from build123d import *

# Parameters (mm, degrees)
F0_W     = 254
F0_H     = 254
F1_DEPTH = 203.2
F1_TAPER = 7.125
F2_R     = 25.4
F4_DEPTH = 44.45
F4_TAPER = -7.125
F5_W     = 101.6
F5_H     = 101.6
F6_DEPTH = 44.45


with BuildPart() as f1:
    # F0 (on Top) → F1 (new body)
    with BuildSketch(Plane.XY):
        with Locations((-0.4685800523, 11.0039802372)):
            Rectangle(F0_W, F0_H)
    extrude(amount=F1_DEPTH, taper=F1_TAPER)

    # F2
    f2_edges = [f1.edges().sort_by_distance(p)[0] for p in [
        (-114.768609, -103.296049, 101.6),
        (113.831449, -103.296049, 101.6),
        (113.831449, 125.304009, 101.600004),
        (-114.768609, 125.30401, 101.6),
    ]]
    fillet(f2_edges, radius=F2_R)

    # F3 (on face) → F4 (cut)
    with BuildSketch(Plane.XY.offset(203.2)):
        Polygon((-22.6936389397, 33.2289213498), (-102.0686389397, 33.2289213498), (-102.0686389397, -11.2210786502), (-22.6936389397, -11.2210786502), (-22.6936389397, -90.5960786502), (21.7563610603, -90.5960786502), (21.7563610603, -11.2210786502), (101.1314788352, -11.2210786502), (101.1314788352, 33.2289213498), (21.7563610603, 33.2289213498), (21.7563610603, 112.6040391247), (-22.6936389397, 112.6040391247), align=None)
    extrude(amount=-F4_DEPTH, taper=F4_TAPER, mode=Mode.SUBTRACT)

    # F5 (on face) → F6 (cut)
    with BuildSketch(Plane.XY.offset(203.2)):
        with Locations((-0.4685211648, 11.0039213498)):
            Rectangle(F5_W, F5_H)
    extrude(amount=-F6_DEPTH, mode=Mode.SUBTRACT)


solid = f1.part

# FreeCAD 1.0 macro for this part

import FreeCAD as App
import Part
import Sketcher
from FreeCAD import Vector
Q = App.Units.Quantity


def edges_at(feature, points):
    """Names of the edges that pass closest to the given points."""
    edges = feature.Shape.Edges
    near = lambda p: min(range(len(edges)), key=lambda i: edges[i].distToShape(Part.Vertex(*p))[0])
    return sorted({f"Edge{near(p) + 1}" for p in points})

doc = App.newDocument("Part")
body = doc.addObject("PartDesign::Body", "Body")

# Sketch on XY plane
sketch1 = doc.addObject("Sketcher::SketchObject", "Sketch")
body.addObject(sketch1)
sketch1.AttachmentSupport = (doc.XY_Plane, [""])
sketch1.MapMode = "FlatFace"
sketch1.addGeometry(Part.LineSegment(Vector(-127, 138, 0), Vector(-127, -116, 0)), False)
sketch1.addGeometry(Part.LineSegment(Vector(-127, -116, 0), Vector(127, -116, 0)), False)
sketch1.addGeometry(Part.LineSegment(Vector(127, -116, 0), Vector(127, 138, 0)), False)
sketch1.addGeometry(Part.LineSegment(Vector(127, 138, 0), Vector(-127, 138, 0)), False)
sketch1.addConstraint(Sketcher.Constraint("Coincident", 0, 2, 1, 1))
sketch1.addConstraint(Sketcher.Constraint("Coincident", 1, 2, 2, 1))
sketch1.addConstraint(Sketcher.Constraint("Coincident", 2, 2, 3, 1))
sketch1.addConstraint(Sketcher.Constraint("Coincident", 3, 2, 0, 1))
sketch1.addConstraint(Sketcher.Constraint("Vertical", 0))
sketch1.addConstraint(Sketcher.Constraint("Horizontal", 1))
sketch1.addConstraint(Sketcher.Constraint("Vertical", 2))
sketch1.addConstraint(Sketcher.Constraint("Horizontal", 3))
sketch1.addConstraint(Sketcher.Constraint("Equal", 3, 0))
sketch1.addConstraint(Sketcher.Constraint("DistanceX", 1, 1, 1, 2, Q("10 in")))
sketch1.addConstraint(Sketcher.Constraint("DistanceX", 0, 2, -1, 1, Q("127.46858 mm")))
sketch1.addConstraint(Sketcher.Constraint("DistanceY", 0, 2, -1, 1, Q("115.99602 mm")))
pad1 = doc.addObject("PartDesign::Pad", "Pad")
body.addObject(pad1)
pad1.Profile = sketch1
pad1.Length = Q("8 in")
pad1.TaperAngle = -7.125
doc.recompute()

fillet = doc.addObject("PartDesign::Fillet", "Fillet")
body.addObject(fillet)
fillet.Base = (pad1, edges_at(pad1, [
    (-114.769, -103.296, 101.6),
    (113.831, -103.296, 101.6),
    (113.831, 125.304, 101.6),
    (-114.769, 125.304, 101.6),
]))
fillet.Radius = Q("1 in")

# Sketch on XY plane
sketch2 = doc.addObject("Sketcher::SketchObject", "Sketch001")
body.addObject(sketch2)
sketch2.AttachmentSupport = (doc.XY_Plane, [""])
sketch2.MapMode = "FlatFace"
sketch2.AttachmentOffset = App.Placement(Vector(0, 0, 8 * 25.4), App.Rotation())
sketch2.addGeometry(Part.LineSegment(Vector(-23, 33, 0), Vector(-102, 33, 0)), False)
sketch2.addGeometry(Part.LineSegment(Vector(-102, 33, 0), Vector(-102, -11, 0)), False)
sketch2.addGeometry(Part.LineSegment(Vector(-102, -11, 0), Vector(-23, -11, 0)), False)
sketch2.addGeometry(Part.LineSegment(Vector(-23, -11, 0), Vector(-23, -91, 0)), False)
sketch2.addGeometry(Part.LineSegment(Vector(-23, -91, 0), Vector(22, -91, 0)), False)
sketch2.addGeometry(Part.LineSegment(Vector(22, -91, 0), Vector(22, -11, 0)), False)
sketch2.addGeometry(Part.LineSegment(Vector(22, -11, 0), Vector(101, -11, 0)), False)
sketch2.addGeometry(Part.LineSegment(Vector(101, -11, 0), Vector(101, 33, 0)), False)
sketch2.addGeometry(Part.LineSegment(Vector(101, 33, 0), Vector(22, 33, 0)), False)
sketch2.addGeometry(Part.LineSegment(Vector(22, 33, 0), Vector(22, 113, 0)), False)
sketch2.addGeometry(Part.LineSegment(Vector(22, 113, 0), Vector(-23, 113, 0)), False)
sketch2.addGeometry(Part.LineSegment(Vector(-23, 113, 0), Vector(-23, 33, 0)), False)
sketch2.addConstraint(Sketcher.Constraint("Coincident", 0, 2, 1, 1))
sketch2.addConstraint(Sketcher.Constraint("Coincident", 1, 2, 2, 1))
sketch2.addConstraint(Sketcher.Constraint("Coincident", 2, 2, 3, 1))
sketch2.addConstraint(Sketcher.Constraint("Coincident", 3, 2, 4, 1))
sketch2.addConstraint(Sketcher.Constraint("Coincident", 4, 2, 5, 1))
sketch2.addConstraint(Sketcher.Constraint("Coincident", 5, 2, 6, 1))
sketch2.addConstraint(Sketcher.Constraint("Coincident", 6, 2, 7, 1))
sketch2.addConstraint(Sketcher.Constraint("Coincident", 7, 2, 8, 1))
sketch2.addConstraint(Sketcher.Constraint("Coincident", 8, 2, 9, 1))
sketch2.addConstraint(Sketcher.Constraint("Coincident", 9, 2, 10, 1))
sketch2.addConstraint(Sketcher.Constraint("Coincident", 10, 2, 11, 1))
sketch2.addConstraint(Sketcher.Constraint("Coincident", 11, 2, 0, 1))
sketch2.addConstraint(Sketcher.Constraint("Horizontal", 0))
sketch2.addConstraint(Sketcher.Constraint("Vertical", 1))
sketch2.addConstraint(Sketcher.Constraint("Horizontal", 2))
sketch2.addConstraint(Sketcher.Constraint("Vertical", 3))
sketch2.addConstraint(Sketcher.Constraint("Horizontal", 4))
sketch2.addConstraint(Sketcher.Constraint("Vertical", 5))
sketch2.addConstraint(Sketcher.Constraint("Horizontal", 6))
sketch2.addConstraint(Sketcher.Constraint("Vertical", 7))
sketch2.addConstraint(Sketcher.Constraint("Horizontal", 8))
sketch2.addConstraint(Sketcher.Constraint("Vertical", 9))
sketch2.addConstraint(Sketcher.Constraint("Horizontal", 10))
sketch2.addConstraint(Sketcher.Constraint("Vertical", 11))
sketch2.addConstraint(Sketcher.Constraint("Horizontal", 2, 2, 5, 2))
sketch2.addConstraint(Sketcher.Constraint("Horizontal", 0, 2, 7, 2))
sketch2.addConstraint(Sketcher.Constraint("Vertical", 5, 2, 8, 2))
sketch2.addConstraint(Sketcher.Constraint("Vertical", 3, 2, 10, 2))
sketch2.addConstraint(Sketcher.Constraint("Equal", 10, 1))
sketch2.addConstraint(Sketcher.Constraint("Equal", 2, 3))
sketch2.addConstraint(Sketcher.Constraint("Equal", 8, 9))
sketch2.addConstraint(Sketcher.Constraint("DistanceX", 4, 1, 4, 2, Q("1.75 in")))
sketch2.addConstraint(Sketcher.Constraint("DistanceX", 0, 2, 0, 1, Q("3.125 in")))
sketch2.addConstraint(Sketcher.Constraint("DistanceX", 6, 1, 6, 2, Q("79.375118 mm")))
sketch2.addConstraint(Sketcher.Constraint("DistanceX", 0, 2, -1, 1, Q("102.068639 mm")))
sketch2.addConstraint(Sketcher.Constraint("DistanceY", -1, 1, 0, 2, Q("33.228921 mm")))
pocket1 = doc.addObject("PartDesign::Pocket", "Pocket")
body.addObject(pocket1)
pocket1.Profile = sketch2
pocket1.Length = Q("1.75 in")
pocket1.TaperAngle = 7.125

# Sketch on XY plane
sketch3 = doc.addObject("Sketcher::SketchObject", "Sketch002")
body.addObject(sketch3)
sketch3.AttachmentSupport = (doc.XY_Plane, [""])
sketch3.MapMode = "FlatFace"
sketch3.AttachmentOffset = App.Placement(Vector(0, 0, 8 * 25.4), App.Rotation())
sketch3.addGeometry(Part.LineSegment(Vector(-51, 62, 0), Vector(-51, -40, 0)), False)
sketch3.addGeometry(Part.LineSegment(Vector(-51, -40, 0), Vector(50, -40, 0)), False)
sketch3.addGeometry(Part.LineSegment(Vector(50, -40, 0), Vector(50, 62, 0)), False)
sketch3.addGeometry(Part.LineSegment(Vector(50, 62, 0), Vector(-51, 62, 0)), False)
sketch3.addConstraint(Sketcher.Constraint("Coincident", 0, 2, 1, 1))
sketch3.addConstraint(Sketcher.Constraint("Coincident", 1, 2, 2, 1))
sketch3.addConstraint(Sketcher.Constraint("Coincident", 2, 2, 3, 1))
sketch3.addConstraint(Sketcher.Constraint("Coincident", 3, 2, 0, 1))
sketch3.addConstraint(Sketcher.Constraint("Vertical", 0))
sketch3.addConstraint(Sketcher.Constraint("Horizontal", 1))
sketch3.addConstraint(Sketcher.Constraint("Vertical", 2))
sketch3.addConstraint(Sketcher.Constraint("Horizontal", 3))
sketch3.addConstraint(Sketcher.Constraint("Equal", 3, 0))
sketch3.addConstraint(Sketcher.Constraint("DistanceX", 1, 1, 1, 2, Q("4 in")))
sketch3.addConstraint(Sketcher.Constraint("DistanceX", 0, 2, -1, 1, Q("51.268521 mm")))
sketch3.addConstraint(Sketcher.Constraint("DistanceY", 0, 2, -1, 1, Q("39.796079 mm")))
pocket2 = doc.addObject("PartDesign::Pocket", "Pocket001")
body.addObject(pocket2)
pocket2.Profile = sketch3
pocket2.Length = Q("1.75 in")

doc.recompute()
